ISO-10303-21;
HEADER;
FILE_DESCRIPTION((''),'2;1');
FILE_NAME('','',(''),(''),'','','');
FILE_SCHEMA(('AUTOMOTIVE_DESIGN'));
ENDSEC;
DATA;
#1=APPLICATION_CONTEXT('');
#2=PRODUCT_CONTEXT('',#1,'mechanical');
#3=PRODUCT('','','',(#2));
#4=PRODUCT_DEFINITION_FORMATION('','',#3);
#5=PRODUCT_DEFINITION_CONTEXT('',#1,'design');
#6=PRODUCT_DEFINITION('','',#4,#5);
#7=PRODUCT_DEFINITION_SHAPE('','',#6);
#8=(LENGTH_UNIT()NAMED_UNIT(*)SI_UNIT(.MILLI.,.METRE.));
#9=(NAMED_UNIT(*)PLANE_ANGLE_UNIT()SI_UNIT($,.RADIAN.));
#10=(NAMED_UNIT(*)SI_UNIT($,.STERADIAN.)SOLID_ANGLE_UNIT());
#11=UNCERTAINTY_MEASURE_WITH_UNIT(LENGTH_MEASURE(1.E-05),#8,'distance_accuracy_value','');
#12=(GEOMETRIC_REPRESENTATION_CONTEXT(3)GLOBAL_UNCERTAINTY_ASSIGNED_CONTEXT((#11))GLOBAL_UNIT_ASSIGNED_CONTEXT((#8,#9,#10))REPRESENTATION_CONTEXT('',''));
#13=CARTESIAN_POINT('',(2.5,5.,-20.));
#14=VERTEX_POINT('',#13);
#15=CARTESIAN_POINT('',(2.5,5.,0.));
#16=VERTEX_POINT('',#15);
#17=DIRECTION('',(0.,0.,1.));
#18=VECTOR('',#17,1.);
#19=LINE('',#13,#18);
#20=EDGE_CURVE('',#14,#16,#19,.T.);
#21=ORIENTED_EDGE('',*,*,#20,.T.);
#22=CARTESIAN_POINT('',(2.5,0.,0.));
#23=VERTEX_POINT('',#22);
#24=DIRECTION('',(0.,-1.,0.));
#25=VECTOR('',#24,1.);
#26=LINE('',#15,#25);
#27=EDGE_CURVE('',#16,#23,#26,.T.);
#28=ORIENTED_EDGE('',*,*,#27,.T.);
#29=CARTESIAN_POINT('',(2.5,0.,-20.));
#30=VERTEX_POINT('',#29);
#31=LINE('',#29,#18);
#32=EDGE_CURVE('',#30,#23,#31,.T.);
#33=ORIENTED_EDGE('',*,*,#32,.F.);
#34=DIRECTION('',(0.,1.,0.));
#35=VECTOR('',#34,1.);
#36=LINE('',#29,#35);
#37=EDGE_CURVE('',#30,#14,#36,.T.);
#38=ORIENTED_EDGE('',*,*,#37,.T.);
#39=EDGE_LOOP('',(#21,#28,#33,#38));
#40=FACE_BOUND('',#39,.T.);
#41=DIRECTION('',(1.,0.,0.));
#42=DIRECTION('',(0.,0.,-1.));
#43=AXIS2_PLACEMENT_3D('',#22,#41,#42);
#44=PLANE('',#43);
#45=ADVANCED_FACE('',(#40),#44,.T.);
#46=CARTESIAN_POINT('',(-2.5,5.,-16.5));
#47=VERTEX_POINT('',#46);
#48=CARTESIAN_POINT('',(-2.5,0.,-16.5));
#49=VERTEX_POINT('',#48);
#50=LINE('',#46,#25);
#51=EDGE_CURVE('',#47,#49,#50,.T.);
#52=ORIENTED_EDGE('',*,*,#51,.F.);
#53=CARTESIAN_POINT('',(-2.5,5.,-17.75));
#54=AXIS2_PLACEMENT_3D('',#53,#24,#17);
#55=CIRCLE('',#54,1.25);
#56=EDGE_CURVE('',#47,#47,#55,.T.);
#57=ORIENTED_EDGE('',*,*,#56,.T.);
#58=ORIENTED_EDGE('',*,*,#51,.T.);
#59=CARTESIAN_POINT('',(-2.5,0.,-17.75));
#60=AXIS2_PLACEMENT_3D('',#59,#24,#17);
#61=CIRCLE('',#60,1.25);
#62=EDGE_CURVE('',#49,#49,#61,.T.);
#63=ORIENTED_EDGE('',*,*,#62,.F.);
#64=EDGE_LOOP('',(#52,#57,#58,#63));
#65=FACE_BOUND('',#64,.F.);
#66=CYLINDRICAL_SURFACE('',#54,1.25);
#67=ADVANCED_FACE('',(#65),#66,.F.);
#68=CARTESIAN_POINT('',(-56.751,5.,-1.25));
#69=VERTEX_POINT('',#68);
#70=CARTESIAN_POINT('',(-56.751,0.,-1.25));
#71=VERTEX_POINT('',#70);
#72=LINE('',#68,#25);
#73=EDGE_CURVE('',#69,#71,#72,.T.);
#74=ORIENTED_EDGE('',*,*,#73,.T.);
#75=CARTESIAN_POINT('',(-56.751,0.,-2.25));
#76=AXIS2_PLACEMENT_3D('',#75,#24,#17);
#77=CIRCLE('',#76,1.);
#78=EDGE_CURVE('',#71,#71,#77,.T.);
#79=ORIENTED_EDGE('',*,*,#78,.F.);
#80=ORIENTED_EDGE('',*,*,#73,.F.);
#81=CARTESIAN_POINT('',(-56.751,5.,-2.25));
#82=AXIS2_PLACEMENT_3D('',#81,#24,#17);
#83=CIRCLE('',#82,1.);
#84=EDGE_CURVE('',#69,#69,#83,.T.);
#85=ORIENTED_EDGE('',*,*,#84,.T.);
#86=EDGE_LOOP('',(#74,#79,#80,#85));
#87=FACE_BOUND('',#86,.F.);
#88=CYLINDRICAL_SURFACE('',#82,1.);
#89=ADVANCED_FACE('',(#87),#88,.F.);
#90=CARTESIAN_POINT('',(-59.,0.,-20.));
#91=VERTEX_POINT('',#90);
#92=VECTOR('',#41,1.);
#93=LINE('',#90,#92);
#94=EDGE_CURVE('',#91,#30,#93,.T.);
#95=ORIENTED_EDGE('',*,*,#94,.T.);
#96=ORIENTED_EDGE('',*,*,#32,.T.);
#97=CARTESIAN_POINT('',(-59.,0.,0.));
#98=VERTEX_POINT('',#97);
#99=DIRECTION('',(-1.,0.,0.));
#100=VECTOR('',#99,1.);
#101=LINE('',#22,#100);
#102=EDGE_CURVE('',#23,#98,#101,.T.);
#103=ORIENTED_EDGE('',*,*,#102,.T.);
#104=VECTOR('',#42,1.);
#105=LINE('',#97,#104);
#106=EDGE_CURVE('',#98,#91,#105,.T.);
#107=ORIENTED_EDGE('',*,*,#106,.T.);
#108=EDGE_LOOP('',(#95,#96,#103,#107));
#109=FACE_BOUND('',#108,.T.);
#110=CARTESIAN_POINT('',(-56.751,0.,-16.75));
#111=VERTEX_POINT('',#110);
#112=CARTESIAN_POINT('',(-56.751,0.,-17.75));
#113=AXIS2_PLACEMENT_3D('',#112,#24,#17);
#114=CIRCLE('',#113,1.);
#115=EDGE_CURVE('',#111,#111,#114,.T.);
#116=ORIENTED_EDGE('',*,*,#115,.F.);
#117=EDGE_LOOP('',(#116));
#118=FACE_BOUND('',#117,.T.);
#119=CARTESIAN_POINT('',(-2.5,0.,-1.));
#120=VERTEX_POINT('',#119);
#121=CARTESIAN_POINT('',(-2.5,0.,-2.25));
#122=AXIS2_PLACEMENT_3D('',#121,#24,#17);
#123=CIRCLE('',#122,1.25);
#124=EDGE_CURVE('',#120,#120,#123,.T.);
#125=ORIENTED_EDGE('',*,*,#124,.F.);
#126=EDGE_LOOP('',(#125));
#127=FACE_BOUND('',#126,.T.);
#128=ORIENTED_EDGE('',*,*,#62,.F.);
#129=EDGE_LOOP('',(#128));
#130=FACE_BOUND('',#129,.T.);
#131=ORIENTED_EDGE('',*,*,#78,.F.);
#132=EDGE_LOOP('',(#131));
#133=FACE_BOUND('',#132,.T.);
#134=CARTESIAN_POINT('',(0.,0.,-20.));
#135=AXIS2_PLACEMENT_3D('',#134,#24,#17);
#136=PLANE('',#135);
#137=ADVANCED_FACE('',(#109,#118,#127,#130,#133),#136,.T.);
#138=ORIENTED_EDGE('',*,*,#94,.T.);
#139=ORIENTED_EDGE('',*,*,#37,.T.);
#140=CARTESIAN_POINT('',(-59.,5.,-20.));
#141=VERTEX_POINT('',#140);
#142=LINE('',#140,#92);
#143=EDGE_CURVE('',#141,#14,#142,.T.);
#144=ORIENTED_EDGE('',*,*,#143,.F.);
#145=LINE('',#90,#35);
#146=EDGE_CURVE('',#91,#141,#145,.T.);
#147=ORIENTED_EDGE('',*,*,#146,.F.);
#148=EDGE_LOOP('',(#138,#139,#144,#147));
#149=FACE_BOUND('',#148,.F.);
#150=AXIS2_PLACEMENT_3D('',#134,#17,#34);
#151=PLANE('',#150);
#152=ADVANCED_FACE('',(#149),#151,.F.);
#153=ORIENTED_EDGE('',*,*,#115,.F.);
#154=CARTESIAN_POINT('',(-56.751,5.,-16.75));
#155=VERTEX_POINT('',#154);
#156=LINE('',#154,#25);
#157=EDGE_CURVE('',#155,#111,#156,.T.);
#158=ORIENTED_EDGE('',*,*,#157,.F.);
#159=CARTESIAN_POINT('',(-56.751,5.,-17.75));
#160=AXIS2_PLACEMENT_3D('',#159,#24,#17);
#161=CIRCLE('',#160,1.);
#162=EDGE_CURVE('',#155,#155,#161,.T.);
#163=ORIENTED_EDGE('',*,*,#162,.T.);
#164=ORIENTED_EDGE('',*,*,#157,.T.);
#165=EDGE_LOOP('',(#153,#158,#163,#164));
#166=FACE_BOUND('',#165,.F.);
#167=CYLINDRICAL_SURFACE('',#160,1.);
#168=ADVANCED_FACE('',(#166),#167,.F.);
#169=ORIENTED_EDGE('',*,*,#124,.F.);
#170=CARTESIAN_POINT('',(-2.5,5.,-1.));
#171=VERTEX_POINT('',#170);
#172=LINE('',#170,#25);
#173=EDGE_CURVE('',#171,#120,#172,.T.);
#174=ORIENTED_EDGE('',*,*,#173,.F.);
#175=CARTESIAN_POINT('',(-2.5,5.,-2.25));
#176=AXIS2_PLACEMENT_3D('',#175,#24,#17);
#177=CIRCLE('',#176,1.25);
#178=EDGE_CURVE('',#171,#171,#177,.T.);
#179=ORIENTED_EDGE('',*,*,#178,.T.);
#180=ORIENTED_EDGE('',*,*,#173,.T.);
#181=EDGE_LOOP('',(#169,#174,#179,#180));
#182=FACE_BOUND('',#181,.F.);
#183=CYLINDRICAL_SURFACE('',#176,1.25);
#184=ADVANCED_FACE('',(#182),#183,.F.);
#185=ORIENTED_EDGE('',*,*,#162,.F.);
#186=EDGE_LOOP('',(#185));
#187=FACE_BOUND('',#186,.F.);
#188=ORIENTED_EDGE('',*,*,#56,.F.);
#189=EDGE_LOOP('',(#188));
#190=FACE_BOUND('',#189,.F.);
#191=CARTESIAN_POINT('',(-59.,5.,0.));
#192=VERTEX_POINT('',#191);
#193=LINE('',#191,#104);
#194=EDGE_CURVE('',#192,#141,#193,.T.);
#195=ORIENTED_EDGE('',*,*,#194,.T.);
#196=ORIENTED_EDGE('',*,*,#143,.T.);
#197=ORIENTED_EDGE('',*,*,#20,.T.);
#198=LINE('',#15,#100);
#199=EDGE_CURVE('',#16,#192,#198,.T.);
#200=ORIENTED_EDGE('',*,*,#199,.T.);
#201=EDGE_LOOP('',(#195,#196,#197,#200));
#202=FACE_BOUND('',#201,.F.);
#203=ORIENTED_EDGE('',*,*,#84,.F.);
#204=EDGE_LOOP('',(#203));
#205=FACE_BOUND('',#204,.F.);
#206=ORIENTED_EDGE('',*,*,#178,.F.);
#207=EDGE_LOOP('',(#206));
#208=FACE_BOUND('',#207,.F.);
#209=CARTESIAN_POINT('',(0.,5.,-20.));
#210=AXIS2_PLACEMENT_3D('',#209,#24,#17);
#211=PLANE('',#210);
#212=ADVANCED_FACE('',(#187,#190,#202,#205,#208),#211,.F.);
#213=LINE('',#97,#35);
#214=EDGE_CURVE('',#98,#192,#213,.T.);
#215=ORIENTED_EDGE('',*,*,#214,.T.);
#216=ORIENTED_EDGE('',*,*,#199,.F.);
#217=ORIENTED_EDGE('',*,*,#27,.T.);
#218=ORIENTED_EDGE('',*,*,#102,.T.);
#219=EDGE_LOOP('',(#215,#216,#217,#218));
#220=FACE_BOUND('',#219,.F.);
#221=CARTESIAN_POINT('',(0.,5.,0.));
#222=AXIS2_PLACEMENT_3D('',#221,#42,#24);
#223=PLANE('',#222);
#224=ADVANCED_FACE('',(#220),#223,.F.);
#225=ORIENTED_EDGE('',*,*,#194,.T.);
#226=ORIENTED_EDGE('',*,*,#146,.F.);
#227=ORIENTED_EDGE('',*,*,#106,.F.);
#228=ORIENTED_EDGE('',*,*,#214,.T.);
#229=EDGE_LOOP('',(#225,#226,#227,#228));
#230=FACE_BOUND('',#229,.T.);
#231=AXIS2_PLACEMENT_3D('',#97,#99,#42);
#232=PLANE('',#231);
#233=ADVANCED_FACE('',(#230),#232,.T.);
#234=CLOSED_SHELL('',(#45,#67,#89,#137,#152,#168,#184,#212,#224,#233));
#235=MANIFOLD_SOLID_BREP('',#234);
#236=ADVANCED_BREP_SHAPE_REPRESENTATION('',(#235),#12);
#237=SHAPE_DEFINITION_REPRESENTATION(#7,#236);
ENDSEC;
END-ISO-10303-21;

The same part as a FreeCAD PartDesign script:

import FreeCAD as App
import Part
import Sketcher
Q = App.Units.Quantity


def add_polygon(sketch, points):
    """Adds a closed chain of lines whose ends are joined by coincident constraints."""
    first, n = sketch.GeometryCount, len(points)
    for a, b in zip(points, points[1:] + points[:1]):
        sketch.addGeometry(Part.LineSegment(App.Vector(*a, 0), App.Vector(*b, 0)), False)
    for i in range(n):
        sketch.addConstraint(Sketcher.Constraint("Coincident", first + i, 2, first + (i + 1) % n, 1))

doc = App.newDocument("Part")
body = doc.addObject("PartDesign::Body", "Body")

# Sketch on XZ plane
sketch1 = body.newObject("Sketcher::SketchObject", "Sketch")
sketch1.AttachmentSupport = (doc.getObject("XZ_Plane"), [""])
sketch1.MapMode = "FlatFace"
add_polygon(sketch1, [(-59, 0), (0, 0), (0, -20), (-59, -20)])  # lines 0-3
sketch1.addConstraint([
    Sketcher.Constraint("Horizontal", 0),
    Sketcher.Constraint("Vertical", 1),
    Sketcher.Constraint("Horizontal", 2),
    Sketcher.Constraint("Vertical", 3),
    Sketcher.Constraint("Coincident", 0, 2, -1, 1),
    Sketcher.Constraint("DistanceX", 0, 1, 0, 2, Q("59 mm")),
    Sketcher.Constraint("DistanceY", 1, 2, 1, 1, Q("20 mm")),
])
pad1 = body.newObject("PartDesign::Pad", "Pad")
pad1.Profile = sketch1
pad1.Length = 5
pad1.Reversed = True

# Sketch on XZ plane
sketch2 = body.newObject("Sketcher::SketchObject", "Sketch001")
sketch2.AttachmentSupport = (doc.getObject("XZ_Plane"), [""])
sketch2.MapMode = "FlatFace"
sketch2.AttachmentOffset = App.Placement(App.Vector(0, 0, -5), App.Rotation())
sketch2.addGeometry([
    Part.Circle(App.Vector(-2.5, -2.2, 0), App.Vector(0, 0, 1), 1.2),
    Part.Circle(App.Vector(-2.5, -17.8, 0), App.Vector(0, 0, 1), 1.2),
], False)
sketch2.addConstraint([
    Sketcher.Constraint("Equal", 0, 1),
    Sketcher.Constraint("Vertical", 0, 3, 1, 3),
    Sketcher.Constraint("Diameter", 0, Q("2.5 mm")),
    Sketcher.Constraint("DistanceX", 0, 3, -1, 1, Q("2.5 mm")),
    Sketcher.Constraint("DistanceY", 1, 3, 0, 3, Q("15.5 mm")),
    Sketcher.Constraint("DistanceY", 0, 3, -1, 1, Q("2.25 mm")),
])
doc.recompute()
hole = body.newObject("PartDesign::Hole", "Hole")
hole.Profile = sketch2
hole.ThreadType = "None"
hole.Diameter = 2.5
hole.DepthType = "ThroughAll"
hole.Reversed = True

# Sketch on XZ plane
sketch3 = body.newObject("Sketcher::SketchObject", "Sketch002")
sketch3.AttachmentSupport = (doc.getObject("XZ_Plane"), [""])
sketch3.MapMode = "FlatFace"
sketch3.AttachmentOffset = App.Placement(App.Vector(0, 0, -5), App.Rotation())
sketch3.addGeometry([
    Part.Circle(App.Vector(-56.8, -2.2, 0), App.Vector(0, 0, 1), 1),
    Part.Circle(App.Vector(-56.8, -17.8, 0), App.Vector(0, 0, 1), 1),
], False)
sketch3.addConstraint([
    Sketcher.Constraint("Equal", 0, 1),
    Sketcher.Constraint("Vertical", 0, 3, 1, 3),
    Sketcher.Constraint("Diameter", 0, Q("2 mm")),
    Sketcher.Constraint("DistanceY", 1, 3, 0, 3, Q("15.5 mm")),
    Sketcher.Constraint("DistanceY", 0, 3, -1, 1, Q("2.25 mm")),
    Sketcher.Constraint("DistanceX", 0, 3, -1, 1, Q("56.751 mm")),
])
doc.recompute()
hole2 = body.newObject("PartDesign::Hole", "Hole001")
hole2.Profile = sketch3
hole2.ThreadType = "None"
hole2.Diameter = 2
hole2.DepthType = "ThroughAll"
hole2.Reversed = True

# Sketch on YZ plane
sketch4 = body.newObject("Sketcher::SketchObject", "Sketch003")
sketch4.AttachmentSupport = (doc.getObject("YZ_Plane"), [""])
sketch4.MapMode = "FlatFace"
add_polygon(sketch4, [(0, 0), (0, -20), (5, -20), (5, 0)])  # lines 0-3
sketch4.addConstraint([
    Sketcher.Constraint("Vertical", 0),
    Sketcher.Constraint("Horizontal", 1),
    Sketcher.Constraint("Vertical", 2),
    Sketcher.Constraint("Horizontal", 3),
    Sketcher.Constraint("Coincident", 3, 2, -1, 1),
    Sketcher.Constraint("DistanceX", 1, 1, 1, 2, Q("5 mm")),
    Sketcher.Constraint("DistanceY", 0, 2, 0, 1, Q("20 mm")),
])
pad2 = body.newObject("PartDesign::Pad", "Pad001")
pad2.Profile = sketch4
pad2.Length = 2.5

doc.recompute()
